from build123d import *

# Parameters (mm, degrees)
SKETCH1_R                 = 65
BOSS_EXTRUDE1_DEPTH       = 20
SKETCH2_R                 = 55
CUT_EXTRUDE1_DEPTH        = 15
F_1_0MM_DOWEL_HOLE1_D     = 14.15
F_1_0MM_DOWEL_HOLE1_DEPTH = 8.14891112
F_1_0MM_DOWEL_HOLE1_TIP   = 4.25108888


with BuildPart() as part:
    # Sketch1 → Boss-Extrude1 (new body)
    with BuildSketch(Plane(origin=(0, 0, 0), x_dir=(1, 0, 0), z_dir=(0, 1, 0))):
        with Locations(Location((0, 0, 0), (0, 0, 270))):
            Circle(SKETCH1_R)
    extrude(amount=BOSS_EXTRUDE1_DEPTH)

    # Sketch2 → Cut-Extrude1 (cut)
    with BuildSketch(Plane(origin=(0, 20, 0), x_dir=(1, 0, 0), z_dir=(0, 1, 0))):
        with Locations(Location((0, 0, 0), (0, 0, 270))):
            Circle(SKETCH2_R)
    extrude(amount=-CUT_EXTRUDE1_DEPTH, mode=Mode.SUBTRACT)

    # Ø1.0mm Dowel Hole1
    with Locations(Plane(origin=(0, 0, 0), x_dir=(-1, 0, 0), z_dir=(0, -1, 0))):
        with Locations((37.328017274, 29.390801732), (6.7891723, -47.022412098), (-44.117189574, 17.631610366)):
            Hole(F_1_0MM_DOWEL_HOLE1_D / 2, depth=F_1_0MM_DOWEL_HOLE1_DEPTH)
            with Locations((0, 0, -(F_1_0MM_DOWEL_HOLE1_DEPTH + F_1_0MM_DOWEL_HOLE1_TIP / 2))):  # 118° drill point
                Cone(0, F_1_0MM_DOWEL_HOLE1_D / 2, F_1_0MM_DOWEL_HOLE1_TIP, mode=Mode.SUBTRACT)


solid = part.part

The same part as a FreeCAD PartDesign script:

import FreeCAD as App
import Part
import Sketcher

V = App.Vector

doc = App.newDocument("Part")
body = doc.addObject("PartDesign::Body", "Body")

# Sketch on XZ plane
sketch1 = body.newObject("Sketcher::SketchObject", "Sketch")
sketch1.AttachmentSupport = (doc.getObject("XZ_Plane"), [""])
sketch1.MapMode = "FlatFace"
sketch1.addGeometry(Part.Circle(V(0, 0, 0), V(0, 0, 1), 65), False)
sketch1.addConstraint(Sketcher.Constraint("Coincident", 0, 3, -1, 1))
sketch1.addConstraint(Sketcher.Constraint("Diameter", 0, 130.0))
pad1 = body.newObject("PartDesign::Pad", "Pad")
pad1.Profile = sketch1
pad1.Length = 20
pad1.Reversed = True

# Sketch on XZ plane
sketch2 = body.newObject("Sketcher::SketchObject", "Sketch001")
sketch2.AttachmentSupport = (doc.getObject("XZ_Plane"), [""])
sketch2.MapMode = "FlatFace"
sketch2.AttachmentOffset = App.Placement(V(0, 0, -20), App.Rotation())
sketch2.addGeometry(Part.Circle(V(0, 0, 0), V(0, 0, 1), 55), False)
sketch2.addConstraint(Sketcher.Constraint("Coincident", 0, 3, -1, 1))
sketch2.addConstraint(Sketcher.Constraint("Diameter", 0, 110.0))
pocket1 = body.newObject("PartDesign::Pocket", "Pocket")
pocket1.Profile = sketch2
pocket1.Length = 15
pocket1.Reversed = True

# Sketch on XZ plane
sketch3 = body.newObject("Sketcher::SketchObject", "Sketch002")
sketch3.AttachmentSupport = (doc.getObject("XZ_Plane"), [""])
sketch3.MapMode = "FlatFace"
sketch3.addGeometry(Part.Circle(V(-37, -29, 0), V(0, 0, 1), 7), False)
sketch3.addGeometry(Part.Circle(V(-7, 47, 0), V(0, 0, 1), 7), False)
sketch3.addGeometry(Part.Circle(V(44, -18, 0), V(0, 0, 1), 7), False)
sketch3.addConstraint(Sketcher.Constraint("Equal", 0, 1))
sketch3.addConstraint(Sketcher.Constraint("Equal", 1, 2))
sketch3.addConstraint(Sketcher.Constraint("Diameter", 0, 14.15))
sketch3.addConstraint(Sketcher.Constraint("DistanceY", 0, 3, -1, 1, 29.390802))
sketch3.addConstraint(Sketcher.Constraint("DistanceX", -1, 1, 2, 3, 44.11719))
sketch3.addConstraint(Sketcher.Constraint("DistanceY", 2, 3, -1, 1, 17.63161))
sketch3.addConstraint(Sketcher.Constraint("DistanceX", 1, 3, 2, 3, 50.906362))
sketch3.addConstraint(Sketcher.Constraint("DistanceX", 0, 3, -1, 1, 37.328017))
sketch3.addConstraint(Sketcher.Constraint("DistanceY", -1, 1, 1, 3, 47.022412))
doc.recompute()
hole = body.newObject("PartDesign::Hole", "Hole")
hole.Profile = sketch3
hole.ThreadType = "None"
hole.Diameter = 14.15
hole.DepthType = "Dimension"
hole.Depth = 8.148911
hole.DrillPoint = "Angled"
hole.DrillPointAngle = 118

doc.recompute()
